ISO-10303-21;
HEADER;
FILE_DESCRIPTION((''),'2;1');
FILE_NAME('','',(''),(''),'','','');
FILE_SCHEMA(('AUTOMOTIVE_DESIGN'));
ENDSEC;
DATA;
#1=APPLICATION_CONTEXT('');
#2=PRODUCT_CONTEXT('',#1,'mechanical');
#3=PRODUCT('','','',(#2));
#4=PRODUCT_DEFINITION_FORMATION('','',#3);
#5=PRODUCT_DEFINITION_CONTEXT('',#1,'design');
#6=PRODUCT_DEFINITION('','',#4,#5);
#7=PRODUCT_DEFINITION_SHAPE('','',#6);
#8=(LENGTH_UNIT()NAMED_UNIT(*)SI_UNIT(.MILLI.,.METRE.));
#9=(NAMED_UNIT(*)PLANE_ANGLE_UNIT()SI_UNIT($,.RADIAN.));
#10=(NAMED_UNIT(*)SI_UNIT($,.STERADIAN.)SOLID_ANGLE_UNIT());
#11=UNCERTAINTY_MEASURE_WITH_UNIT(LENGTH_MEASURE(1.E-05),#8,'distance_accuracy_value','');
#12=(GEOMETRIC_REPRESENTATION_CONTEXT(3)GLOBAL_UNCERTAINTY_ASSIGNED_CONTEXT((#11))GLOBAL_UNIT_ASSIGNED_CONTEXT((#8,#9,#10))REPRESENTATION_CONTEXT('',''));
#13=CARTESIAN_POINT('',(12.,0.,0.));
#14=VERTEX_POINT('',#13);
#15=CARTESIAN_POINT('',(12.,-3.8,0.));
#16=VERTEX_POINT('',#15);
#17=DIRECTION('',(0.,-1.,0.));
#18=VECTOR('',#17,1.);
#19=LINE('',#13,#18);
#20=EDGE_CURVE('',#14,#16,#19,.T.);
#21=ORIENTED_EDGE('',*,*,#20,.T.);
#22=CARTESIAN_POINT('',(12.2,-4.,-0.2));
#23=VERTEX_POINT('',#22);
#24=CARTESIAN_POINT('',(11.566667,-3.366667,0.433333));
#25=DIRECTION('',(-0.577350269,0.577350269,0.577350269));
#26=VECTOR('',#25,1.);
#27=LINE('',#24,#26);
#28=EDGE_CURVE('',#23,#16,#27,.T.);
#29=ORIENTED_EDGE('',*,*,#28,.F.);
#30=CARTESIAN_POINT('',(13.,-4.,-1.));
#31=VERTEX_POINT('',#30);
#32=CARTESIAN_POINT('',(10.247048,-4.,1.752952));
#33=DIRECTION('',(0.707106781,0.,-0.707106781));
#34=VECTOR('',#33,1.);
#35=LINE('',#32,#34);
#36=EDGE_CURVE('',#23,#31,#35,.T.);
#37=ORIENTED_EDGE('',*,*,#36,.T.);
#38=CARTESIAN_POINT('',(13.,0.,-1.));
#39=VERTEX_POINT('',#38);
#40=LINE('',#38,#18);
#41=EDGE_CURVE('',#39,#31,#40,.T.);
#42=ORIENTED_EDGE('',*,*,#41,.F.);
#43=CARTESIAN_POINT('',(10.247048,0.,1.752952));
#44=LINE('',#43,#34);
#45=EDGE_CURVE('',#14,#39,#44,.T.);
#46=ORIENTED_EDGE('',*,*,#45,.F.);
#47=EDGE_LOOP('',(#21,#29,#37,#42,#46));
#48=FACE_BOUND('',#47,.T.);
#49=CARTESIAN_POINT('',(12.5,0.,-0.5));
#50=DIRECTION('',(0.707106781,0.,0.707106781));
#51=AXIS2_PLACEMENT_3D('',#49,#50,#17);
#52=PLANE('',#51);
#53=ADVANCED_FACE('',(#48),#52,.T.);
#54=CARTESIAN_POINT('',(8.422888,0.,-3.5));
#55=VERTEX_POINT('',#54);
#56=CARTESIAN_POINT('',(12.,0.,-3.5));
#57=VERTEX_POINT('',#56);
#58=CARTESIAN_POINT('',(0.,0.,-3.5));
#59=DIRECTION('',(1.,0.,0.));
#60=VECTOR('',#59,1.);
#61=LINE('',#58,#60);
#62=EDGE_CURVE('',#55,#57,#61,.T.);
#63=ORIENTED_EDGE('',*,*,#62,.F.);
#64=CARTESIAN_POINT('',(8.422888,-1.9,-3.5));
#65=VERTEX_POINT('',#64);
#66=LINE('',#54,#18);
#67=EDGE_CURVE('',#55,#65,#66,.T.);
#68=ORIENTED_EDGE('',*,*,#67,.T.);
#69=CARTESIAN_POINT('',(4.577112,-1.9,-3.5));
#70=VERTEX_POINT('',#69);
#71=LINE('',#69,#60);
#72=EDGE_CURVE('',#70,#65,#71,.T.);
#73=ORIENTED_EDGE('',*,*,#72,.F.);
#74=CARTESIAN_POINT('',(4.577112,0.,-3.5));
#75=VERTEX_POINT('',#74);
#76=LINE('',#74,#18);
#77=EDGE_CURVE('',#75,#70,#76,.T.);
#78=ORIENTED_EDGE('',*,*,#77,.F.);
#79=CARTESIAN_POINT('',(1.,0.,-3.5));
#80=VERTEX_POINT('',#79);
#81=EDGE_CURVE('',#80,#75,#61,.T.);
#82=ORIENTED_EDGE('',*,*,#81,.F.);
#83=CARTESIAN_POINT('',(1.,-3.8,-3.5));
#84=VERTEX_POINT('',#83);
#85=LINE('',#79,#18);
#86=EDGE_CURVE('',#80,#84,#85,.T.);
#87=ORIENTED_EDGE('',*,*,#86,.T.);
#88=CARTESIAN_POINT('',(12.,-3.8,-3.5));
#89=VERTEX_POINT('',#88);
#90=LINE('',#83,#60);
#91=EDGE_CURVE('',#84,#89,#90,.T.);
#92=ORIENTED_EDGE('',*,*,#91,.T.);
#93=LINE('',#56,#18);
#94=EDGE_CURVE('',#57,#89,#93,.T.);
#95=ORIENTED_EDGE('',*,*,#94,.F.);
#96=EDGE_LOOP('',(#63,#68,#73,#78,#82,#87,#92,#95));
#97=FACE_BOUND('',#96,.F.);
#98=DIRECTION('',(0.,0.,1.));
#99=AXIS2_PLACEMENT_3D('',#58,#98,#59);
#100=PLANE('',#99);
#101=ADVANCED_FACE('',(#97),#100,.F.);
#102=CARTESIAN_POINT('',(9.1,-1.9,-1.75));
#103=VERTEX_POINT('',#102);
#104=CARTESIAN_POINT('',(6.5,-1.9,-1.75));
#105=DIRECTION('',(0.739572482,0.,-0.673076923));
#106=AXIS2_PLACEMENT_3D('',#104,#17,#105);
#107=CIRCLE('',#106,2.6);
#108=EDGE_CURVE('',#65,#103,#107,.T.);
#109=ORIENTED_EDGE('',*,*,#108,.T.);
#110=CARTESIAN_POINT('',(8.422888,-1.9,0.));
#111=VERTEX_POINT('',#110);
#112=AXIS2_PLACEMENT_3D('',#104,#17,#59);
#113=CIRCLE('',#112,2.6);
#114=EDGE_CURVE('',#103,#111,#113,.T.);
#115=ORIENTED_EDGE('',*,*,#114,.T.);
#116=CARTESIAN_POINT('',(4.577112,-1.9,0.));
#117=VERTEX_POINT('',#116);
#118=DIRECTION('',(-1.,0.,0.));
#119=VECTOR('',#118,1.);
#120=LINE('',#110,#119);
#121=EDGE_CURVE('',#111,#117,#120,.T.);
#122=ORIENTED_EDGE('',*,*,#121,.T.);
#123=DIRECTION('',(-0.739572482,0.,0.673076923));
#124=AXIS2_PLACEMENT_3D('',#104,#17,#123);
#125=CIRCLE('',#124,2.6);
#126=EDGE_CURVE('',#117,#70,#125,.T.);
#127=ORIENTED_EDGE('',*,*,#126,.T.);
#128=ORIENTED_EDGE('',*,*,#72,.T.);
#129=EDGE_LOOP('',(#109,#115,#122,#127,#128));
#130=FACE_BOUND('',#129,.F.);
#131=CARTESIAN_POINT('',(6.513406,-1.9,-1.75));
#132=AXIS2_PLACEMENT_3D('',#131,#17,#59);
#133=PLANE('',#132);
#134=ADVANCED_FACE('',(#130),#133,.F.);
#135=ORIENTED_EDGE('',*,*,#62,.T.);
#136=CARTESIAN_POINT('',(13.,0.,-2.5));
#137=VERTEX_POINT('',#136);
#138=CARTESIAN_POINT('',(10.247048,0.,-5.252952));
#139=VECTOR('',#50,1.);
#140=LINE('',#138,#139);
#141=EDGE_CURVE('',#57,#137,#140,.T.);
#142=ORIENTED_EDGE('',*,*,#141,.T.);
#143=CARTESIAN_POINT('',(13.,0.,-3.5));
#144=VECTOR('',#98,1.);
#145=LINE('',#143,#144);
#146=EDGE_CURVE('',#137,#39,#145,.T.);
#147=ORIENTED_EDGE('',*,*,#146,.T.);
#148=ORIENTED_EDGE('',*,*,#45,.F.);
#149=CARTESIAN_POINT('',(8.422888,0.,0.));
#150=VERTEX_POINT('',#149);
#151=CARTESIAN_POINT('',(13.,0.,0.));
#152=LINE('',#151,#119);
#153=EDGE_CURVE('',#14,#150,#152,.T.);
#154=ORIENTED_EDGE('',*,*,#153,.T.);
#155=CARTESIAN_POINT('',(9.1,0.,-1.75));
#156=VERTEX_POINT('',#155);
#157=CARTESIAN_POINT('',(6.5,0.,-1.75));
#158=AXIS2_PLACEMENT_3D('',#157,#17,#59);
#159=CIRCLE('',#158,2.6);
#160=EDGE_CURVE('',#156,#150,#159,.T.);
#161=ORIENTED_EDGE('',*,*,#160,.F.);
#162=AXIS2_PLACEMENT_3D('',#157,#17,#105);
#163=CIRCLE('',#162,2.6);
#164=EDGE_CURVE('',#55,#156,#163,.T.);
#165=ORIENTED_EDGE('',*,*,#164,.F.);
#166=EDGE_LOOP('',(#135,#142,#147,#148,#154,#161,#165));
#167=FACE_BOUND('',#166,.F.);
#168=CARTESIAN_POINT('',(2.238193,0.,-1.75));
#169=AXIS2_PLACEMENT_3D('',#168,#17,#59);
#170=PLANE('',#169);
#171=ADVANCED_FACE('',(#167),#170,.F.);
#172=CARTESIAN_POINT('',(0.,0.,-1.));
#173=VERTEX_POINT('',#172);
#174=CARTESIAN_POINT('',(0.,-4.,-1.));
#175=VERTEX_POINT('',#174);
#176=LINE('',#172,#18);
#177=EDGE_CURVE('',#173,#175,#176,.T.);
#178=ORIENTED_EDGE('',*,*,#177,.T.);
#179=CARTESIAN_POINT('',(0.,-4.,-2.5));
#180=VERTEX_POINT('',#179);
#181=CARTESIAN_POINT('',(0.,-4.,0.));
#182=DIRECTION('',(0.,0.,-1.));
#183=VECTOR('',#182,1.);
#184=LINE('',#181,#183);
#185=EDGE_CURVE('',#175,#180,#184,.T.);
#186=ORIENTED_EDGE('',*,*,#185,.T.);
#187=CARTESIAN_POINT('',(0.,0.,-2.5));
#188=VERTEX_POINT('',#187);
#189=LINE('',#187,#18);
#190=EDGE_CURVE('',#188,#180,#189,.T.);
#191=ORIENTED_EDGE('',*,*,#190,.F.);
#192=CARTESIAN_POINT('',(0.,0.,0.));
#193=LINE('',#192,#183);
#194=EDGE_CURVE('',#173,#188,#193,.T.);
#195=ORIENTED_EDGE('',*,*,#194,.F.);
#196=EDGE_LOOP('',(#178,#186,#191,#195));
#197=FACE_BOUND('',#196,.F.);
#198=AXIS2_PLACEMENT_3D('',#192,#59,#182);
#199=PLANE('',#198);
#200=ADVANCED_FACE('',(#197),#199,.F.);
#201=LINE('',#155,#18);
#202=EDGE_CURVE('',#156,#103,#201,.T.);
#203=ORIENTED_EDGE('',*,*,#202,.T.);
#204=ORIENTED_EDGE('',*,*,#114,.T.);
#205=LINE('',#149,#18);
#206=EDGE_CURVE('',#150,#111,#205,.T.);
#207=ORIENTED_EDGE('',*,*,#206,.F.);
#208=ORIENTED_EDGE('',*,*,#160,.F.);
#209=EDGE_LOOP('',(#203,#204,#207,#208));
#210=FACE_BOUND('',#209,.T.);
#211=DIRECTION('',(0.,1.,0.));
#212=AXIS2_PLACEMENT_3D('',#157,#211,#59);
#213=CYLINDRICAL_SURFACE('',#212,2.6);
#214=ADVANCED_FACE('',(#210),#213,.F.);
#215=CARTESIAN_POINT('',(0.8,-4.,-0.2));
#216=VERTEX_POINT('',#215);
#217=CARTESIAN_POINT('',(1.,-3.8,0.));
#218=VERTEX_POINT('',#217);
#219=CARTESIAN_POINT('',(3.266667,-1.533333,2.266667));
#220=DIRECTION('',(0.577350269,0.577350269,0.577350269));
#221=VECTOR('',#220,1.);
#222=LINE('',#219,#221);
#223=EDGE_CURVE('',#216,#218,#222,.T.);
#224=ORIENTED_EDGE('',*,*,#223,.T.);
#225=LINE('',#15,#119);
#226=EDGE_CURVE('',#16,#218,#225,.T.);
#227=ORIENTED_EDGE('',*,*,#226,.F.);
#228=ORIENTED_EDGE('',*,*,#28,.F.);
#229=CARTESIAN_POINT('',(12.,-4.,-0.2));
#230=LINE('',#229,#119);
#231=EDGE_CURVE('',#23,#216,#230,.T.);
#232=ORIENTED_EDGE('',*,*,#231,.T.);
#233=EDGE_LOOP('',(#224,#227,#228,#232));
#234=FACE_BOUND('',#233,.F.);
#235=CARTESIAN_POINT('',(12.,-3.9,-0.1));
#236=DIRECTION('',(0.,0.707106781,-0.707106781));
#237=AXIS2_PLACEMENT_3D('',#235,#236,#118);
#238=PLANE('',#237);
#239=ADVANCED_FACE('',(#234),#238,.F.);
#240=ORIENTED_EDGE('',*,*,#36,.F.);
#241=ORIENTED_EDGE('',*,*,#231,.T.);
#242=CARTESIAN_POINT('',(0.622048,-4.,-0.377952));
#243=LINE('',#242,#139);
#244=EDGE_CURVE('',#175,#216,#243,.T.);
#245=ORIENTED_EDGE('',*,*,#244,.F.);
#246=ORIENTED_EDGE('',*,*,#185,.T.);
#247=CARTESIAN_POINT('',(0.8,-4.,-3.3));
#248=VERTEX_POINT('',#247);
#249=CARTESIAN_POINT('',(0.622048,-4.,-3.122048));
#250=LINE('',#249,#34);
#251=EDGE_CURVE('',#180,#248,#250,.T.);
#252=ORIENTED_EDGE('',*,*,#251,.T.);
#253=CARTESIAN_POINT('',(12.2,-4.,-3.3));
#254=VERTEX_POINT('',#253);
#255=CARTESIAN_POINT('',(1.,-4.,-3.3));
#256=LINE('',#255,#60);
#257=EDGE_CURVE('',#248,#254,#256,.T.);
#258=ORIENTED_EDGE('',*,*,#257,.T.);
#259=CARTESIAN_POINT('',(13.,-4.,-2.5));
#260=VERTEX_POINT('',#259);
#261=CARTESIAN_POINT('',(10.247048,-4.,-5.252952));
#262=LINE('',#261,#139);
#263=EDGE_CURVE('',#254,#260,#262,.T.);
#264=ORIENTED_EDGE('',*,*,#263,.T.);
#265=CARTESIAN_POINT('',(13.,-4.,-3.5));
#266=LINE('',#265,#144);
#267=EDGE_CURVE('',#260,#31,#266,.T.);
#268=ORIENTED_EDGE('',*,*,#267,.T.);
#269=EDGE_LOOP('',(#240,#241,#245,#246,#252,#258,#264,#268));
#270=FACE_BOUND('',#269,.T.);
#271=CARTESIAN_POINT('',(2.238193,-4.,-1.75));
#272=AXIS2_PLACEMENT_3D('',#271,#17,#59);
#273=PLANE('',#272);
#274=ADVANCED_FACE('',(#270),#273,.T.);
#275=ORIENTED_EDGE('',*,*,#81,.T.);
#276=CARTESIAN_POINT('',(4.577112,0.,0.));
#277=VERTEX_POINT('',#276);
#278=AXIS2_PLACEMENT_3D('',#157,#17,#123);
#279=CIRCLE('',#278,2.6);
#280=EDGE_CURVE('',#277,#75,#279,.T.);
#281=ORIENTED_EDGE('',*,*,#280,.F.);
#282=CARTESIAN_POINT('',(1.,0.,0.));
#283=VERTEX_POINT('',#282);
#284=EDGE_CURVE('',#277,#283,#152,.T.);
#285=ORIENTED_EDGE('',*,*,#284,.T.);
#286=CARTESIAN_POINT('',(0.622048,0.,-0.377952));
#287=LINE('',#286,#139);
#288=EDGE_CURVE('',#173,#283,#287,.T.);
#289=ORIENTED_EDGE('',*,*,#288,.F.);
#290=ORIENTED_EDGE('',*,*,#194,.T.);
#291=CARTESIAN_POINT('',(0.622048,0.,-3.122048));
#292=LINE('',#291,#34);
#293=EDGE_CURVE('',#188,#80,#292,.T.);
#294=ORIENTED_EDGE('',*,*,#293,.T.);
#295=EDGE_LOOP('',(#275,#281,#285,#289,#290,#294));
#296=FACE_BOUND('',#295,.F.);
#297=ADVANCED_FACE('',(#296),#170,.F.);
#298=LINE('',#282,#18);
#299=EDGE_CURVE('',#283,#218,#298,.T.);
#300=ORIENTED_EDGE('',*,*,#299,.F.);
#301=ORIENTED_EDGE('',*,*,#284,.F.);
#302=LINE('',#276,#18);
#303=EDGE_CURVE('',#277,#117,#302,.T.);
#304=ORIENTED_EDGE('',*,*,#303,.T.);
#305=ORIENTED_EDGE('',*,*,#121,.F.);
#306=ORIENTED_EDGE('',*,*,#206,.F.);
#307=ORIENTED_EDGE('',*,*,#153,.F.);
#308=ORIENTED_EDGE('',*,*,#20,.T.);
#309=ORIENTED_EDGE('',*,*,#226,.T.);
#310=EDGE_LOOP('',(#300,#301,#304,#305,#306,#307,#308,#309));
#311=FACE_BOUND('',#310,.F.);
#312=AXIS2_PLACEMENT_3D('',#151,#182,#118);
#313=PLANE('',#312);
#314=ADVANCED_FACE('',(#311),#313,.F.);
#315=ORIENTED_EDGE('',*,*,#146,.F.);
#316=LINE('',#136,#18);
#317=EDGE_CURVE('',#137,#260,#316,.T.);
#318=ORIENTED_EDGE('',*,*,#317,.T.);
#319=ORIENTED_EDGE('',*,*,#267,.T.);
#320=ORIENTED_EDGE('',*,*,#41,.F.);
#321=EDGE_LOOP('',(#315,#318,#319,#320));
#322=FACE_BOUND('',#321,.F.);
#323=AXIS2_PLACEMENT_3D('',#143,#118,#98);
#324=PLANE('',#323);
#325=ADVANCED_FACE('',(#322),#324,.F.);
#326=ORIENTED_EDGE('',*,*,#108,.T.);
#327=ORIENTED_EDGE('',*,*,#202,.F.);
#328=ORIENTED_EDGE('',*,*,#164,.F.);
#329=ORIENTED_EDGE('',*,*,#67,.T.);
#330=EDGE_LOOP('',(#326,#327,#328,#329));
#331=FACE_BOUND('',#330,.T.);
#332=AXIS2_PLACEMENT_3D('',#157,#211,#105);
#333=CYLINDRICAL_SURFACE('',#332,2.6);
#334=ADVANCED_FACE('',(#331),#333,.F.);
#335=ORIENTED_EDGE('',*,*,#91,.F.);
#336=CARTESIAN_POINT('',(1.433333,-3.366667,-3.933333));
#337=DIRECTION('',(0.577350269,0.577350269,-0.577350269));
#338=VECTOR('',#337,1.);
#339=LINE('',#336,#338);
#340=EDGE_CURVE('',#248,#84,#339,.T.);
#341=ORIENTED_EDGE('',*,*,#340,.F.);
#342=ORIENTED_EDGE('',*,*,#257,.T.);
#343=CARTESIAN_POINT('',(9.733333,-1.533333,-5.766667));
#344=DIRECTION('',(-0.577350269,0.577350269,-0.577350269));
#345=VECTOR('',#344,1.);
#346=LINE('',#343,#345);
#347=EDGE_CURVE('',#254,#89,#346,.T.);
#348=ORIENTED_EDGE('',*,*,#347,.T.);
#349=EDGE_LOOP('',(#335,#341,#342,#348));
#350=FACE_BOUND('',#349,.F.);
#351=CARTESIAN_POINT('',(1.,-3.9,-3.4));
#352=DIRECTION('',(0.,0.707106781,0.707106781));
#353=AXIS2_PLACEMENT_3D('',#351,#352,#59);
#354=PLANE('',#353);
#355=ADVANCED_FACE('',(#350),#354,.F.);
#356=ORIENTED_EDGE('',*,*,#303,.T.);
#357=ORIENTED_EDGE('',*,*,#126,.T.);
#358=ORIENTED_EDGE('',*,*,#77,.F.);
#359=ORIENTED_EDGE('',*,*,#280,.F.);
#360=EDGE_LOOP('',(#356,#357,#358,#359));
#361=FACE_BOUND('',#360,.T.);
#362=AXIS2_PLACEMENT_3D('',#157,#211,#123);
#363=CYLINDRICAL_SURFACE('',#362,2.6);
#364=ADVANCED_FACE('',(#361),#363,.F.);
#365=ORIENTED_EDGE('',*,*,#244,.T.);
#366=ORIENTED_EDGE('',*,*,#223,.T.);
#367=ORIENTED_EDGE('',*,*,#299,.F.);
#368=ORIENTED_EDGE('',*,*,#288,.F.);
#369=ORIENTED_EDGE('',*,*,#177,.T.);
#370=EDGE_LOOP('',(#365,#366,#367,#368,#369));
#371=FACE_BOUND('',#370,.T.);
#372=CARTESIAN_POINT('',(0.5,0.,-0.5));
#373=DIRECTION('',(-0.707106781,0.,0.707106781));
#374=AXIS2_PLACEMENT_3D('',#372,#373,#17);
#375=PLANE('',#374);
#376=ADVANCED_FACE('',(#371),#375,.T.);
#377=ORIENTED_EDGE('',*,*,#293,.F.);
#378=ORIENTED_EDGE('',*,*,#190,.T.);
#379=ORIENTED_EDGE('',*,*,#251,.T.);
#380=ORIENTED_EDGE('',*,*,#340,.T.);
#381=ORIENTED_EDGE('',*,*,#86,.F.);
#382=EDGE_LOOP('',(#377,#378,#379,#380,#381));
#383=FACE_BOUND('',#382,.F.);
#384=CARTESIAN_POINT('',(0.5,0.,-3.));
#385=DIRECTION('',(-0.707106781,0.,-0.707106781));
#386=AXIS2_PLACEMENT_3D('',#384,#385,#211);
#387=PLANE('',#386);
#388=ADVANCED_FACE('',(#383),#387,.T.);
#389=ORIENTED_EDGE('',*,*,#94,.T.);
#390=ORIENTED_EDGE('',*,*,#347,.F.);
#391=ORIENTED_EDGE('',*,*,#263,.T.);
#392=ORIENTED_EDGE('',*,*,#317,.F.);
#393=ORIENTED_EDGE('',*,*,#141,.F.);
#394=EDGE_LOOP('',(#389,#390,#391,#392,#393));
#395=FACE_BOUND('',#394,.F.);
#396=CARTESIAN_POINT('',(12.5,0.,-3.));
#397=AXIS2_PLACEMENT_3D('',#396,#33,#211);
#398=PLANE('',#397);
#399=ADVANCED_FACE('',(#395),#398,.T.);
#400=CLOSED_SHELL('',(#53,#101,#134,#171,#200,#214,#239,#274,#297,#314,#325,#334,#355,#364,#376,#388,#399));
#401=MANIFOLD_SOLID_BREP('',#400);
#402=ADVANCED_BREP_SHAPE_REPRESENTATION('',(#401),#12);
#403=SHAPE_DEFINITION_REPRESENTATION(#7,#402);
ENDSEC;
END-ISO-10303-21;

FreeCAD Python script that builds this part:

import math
import FreeCAD as App
import Part
import Sketcher
Q = App.Units.Quantity


def edges_at(feature, points):
    """Names of the edges that pass closest to the given points."""
    edges = feature.Shape.Edges
    near = lambda p: min(range(len(edges)), key=lambda i: edges[i].distToShape(Part.Vertex(*p))[0])
    return sorted({f"Edge{near(p) + 1}" for p in points})

doc = App.newDocument("Part")
params = doc.addObject("Spreadsheet::Sheet", "Params")
for row, (alias, value) in enumerate([
    ("sketch1_width", "13 mm"),
    ("sketch1_height", "3.5 mm"),
    ("pad1_length", "4 mm"),
    ("sketch2_radius", "2.6 mm"),
    ("pocket1_length", "1.9 mm"),
    ("chamfer_size", "1 mm"),
    ("chamfer2_size", "0.2 mm"),
], start=1):
    params.set(f"A{row}", alias)
    params.set(f"B{row}", "=" + value)
    params.setAlias(f"B{row}", alias)

body = doc.addObject("PartDesign::Body", "Body")

# Sketch on XZ plane
sketch1 = body.newObject("Sketcher::SketchObject", "Sketch")
sketch1.AttachmentSupport = (doc.getObject("XZ_Plane"), [""])
sketch1.MapMode = "FlatFace"
sketch1.addGeometry(Part.LineSegment(App.Vector(0, 0, 0), App.Vector(0, -3.5, 0)), False)
sketch1.addGeometry(Part.LineSegment(App.Vector(0, -3.5, 0), App.Vector(13, -3.5, 0)), False)
sketch1.addGeometry(Part.LineSegment(App.Vector(13, -3.5, 0), App.Vector(13, 0, 0)), False)
sketch1.addGeometry(Part.LineSegment(App.Vector(13, 0, 0), App.Vector(0, 0, 0)), False)
sketch1.addConstraint(Sketcher.Constraint("Coincident", 0, 2, 1, 1))
sketch1.addConstraint(Sketcher.Constraint("Coincident", 1, 2, 2, 1))
sketch1.addConstraint(Sketcher.Constraint("Coincident", 2, 2, 3, 1))
sketch1.addConstraint(Sketcher.Constraint("Coincident", 3, 2, 0, 1))
sketch1.addConstraint(Sketcher.Constraint("Vertical", 0))
sketch1.addConstraint(Sketcher.Constraint("Horizontal", 1))
sketch1.addConstraint(Sketcher.Constraint("Vertical", 2))
sketch1.addConstraint(Sketcher.Constraint("Horizontal", 3))
sketch1.addConstraint(Sketcher.Constraint("Coincident", 3, 2, -1, 1))
sketch1.addConstraint(Sketcher.Constraint("DistanceX", 1, 1, 1, 2, Q("13 mm")))
sketch1.addConstraint(Sketcher.Constraint("DistanceY", 0, 2, 0, 1, Q("3.5 mm")))
sketch1.setExpression("Constraints[9]", "Params.sketch1_width")
sketch1.setExpression("Constraints[10]", "Params.sketch1_height")
pad1 = body.newObject("PartDesign::Pad", "Pad")
pad1.Profile = sketch1
pad1.setExpression("Length", "Params.pad1_length")

# Sketch on XZ plane
sketch2 = body.newObject("Sketcher::SketchObject", "Sketch001")
sketch2.AttachmentSupport = (doc.getObject("XZ_Plane"), [""])
sketch2.MapMode = "FlatFace"
sketch2.addGeometry(Part.LineSegment(App.Vector(8.4, 0, 0), App.Vector(4.6, 0, 0)), False)
sketch2.addGeometry(Part.ArcOfCircle(Part.Circle(App.Vector(6.5, -1.8, 0), App.Vector(0, 0, 1), 2.6), math.radians(138), math.radians(222)), False)
sketch2.addGeometry(Part.LineSegment(App.Vector(4.6, -3.5, 0), App.Vector(8.4, -3.5, 0)), False)
sketch2.addGeometry(Part.ArcOfCircle(Part.Circle(App.Vector(6.5, -1.8, 0), App.Vector(0, 0, 1), 2.6), math.radians(-42), math.radians(0)), False)
sketch2.addGeometry(Part.ArcOfCircle(Part.Circle(App.Vector(6.5, -1.8, 0), App.Vector(0, 0, 1), 2.6), math.radians(0), math.radians(42)), False)
sketch2.addConstraint(Sketcher.Constraint("Coincident", 0, 2, 1, 1))
sketch2.addConstraint(Sketcher.Constraint("Coincident", 1, 2, 2, 1))
sketch2.addConstraint(Sketcher.Constraint("Coincident", 2, 2, 3, 1))
sketch2.addConstraint(Sketcher.Constraint("Tangent", 3, 2, 4, 1))
sketch2.addConstraint(Sketcher.Constraint("Coincident", 4, 2, 0, 1))
sketch2.addConstraint(Sketcher.Constraint("Horizontal", 0))
sketch2.addConstraint(Sketcher.Constraint("Horizontal", 2))
sketch2.addConstraint(Sketcher.Constraint("Coincident", 3, 3, 1, 3))
sketch2.addConstraint(Sketcher.Constraint("Equal", 1, 3))
sketch2.addConstraint(Sketcher.Constraint("Equal", 3, 4))
sketch2.addConstraint(Sketcher.Constraint("PointOnObject", 0, 2, -1))
sketch2.addConstraint(Sketcher.Constraint("Horizontal", 4, 3, 3, 2))
sketch2.addConstraint(Sketcher.Constraint("Vertical", 0, 2, 1, 2))
sketch2.addConstraint(Sketcher.Constraint("Radius", 1, Q("2.6 mm")))
sketch2.addConstraint(Sketcher.Constraint("DistanceX", -1, 1, 1, 3, Q("6.5 mm")))
sketch2.addConstraint(Sketcher.Constraint("DistanceY", 1, 2, -1, 1, Q("3.5 mm")))
sketch2.setExpression("Constraints[13]", "Params.sketch2_radius")
pocket1 = body.newObject("PartDesign::Pocket", "Pocket")
pocket1.Profile = sketch2
pocket1.setExpression("Length", "Params.pocket1_length")
pocket1.Reversed = True
doc.recompute()

chamfer = body.newObject("PartDesign::Chamfer", "Chamfer")
chamfer.Base = (pocket1, edges_at(pocket1, [
    (13, -2, -3.5),
    (13, -2, 0),
    (0, -2, -3.5),
    (0, -2, 0),
]))
chamfer.setExpression("Size", "Params.chamfer_size")
doc.recompute()

chamfer2 = body.newObject("PartDesign::Chamfer", "Chamfer001")
chamfer2.Base = (chamfer, edges_at(chamfer, [(6.5, -4, -3.5), (6.5, -4, 0)]))
chamfer2.setExpression("Size", "Params.chamfer2_size")

doc.recompute()
